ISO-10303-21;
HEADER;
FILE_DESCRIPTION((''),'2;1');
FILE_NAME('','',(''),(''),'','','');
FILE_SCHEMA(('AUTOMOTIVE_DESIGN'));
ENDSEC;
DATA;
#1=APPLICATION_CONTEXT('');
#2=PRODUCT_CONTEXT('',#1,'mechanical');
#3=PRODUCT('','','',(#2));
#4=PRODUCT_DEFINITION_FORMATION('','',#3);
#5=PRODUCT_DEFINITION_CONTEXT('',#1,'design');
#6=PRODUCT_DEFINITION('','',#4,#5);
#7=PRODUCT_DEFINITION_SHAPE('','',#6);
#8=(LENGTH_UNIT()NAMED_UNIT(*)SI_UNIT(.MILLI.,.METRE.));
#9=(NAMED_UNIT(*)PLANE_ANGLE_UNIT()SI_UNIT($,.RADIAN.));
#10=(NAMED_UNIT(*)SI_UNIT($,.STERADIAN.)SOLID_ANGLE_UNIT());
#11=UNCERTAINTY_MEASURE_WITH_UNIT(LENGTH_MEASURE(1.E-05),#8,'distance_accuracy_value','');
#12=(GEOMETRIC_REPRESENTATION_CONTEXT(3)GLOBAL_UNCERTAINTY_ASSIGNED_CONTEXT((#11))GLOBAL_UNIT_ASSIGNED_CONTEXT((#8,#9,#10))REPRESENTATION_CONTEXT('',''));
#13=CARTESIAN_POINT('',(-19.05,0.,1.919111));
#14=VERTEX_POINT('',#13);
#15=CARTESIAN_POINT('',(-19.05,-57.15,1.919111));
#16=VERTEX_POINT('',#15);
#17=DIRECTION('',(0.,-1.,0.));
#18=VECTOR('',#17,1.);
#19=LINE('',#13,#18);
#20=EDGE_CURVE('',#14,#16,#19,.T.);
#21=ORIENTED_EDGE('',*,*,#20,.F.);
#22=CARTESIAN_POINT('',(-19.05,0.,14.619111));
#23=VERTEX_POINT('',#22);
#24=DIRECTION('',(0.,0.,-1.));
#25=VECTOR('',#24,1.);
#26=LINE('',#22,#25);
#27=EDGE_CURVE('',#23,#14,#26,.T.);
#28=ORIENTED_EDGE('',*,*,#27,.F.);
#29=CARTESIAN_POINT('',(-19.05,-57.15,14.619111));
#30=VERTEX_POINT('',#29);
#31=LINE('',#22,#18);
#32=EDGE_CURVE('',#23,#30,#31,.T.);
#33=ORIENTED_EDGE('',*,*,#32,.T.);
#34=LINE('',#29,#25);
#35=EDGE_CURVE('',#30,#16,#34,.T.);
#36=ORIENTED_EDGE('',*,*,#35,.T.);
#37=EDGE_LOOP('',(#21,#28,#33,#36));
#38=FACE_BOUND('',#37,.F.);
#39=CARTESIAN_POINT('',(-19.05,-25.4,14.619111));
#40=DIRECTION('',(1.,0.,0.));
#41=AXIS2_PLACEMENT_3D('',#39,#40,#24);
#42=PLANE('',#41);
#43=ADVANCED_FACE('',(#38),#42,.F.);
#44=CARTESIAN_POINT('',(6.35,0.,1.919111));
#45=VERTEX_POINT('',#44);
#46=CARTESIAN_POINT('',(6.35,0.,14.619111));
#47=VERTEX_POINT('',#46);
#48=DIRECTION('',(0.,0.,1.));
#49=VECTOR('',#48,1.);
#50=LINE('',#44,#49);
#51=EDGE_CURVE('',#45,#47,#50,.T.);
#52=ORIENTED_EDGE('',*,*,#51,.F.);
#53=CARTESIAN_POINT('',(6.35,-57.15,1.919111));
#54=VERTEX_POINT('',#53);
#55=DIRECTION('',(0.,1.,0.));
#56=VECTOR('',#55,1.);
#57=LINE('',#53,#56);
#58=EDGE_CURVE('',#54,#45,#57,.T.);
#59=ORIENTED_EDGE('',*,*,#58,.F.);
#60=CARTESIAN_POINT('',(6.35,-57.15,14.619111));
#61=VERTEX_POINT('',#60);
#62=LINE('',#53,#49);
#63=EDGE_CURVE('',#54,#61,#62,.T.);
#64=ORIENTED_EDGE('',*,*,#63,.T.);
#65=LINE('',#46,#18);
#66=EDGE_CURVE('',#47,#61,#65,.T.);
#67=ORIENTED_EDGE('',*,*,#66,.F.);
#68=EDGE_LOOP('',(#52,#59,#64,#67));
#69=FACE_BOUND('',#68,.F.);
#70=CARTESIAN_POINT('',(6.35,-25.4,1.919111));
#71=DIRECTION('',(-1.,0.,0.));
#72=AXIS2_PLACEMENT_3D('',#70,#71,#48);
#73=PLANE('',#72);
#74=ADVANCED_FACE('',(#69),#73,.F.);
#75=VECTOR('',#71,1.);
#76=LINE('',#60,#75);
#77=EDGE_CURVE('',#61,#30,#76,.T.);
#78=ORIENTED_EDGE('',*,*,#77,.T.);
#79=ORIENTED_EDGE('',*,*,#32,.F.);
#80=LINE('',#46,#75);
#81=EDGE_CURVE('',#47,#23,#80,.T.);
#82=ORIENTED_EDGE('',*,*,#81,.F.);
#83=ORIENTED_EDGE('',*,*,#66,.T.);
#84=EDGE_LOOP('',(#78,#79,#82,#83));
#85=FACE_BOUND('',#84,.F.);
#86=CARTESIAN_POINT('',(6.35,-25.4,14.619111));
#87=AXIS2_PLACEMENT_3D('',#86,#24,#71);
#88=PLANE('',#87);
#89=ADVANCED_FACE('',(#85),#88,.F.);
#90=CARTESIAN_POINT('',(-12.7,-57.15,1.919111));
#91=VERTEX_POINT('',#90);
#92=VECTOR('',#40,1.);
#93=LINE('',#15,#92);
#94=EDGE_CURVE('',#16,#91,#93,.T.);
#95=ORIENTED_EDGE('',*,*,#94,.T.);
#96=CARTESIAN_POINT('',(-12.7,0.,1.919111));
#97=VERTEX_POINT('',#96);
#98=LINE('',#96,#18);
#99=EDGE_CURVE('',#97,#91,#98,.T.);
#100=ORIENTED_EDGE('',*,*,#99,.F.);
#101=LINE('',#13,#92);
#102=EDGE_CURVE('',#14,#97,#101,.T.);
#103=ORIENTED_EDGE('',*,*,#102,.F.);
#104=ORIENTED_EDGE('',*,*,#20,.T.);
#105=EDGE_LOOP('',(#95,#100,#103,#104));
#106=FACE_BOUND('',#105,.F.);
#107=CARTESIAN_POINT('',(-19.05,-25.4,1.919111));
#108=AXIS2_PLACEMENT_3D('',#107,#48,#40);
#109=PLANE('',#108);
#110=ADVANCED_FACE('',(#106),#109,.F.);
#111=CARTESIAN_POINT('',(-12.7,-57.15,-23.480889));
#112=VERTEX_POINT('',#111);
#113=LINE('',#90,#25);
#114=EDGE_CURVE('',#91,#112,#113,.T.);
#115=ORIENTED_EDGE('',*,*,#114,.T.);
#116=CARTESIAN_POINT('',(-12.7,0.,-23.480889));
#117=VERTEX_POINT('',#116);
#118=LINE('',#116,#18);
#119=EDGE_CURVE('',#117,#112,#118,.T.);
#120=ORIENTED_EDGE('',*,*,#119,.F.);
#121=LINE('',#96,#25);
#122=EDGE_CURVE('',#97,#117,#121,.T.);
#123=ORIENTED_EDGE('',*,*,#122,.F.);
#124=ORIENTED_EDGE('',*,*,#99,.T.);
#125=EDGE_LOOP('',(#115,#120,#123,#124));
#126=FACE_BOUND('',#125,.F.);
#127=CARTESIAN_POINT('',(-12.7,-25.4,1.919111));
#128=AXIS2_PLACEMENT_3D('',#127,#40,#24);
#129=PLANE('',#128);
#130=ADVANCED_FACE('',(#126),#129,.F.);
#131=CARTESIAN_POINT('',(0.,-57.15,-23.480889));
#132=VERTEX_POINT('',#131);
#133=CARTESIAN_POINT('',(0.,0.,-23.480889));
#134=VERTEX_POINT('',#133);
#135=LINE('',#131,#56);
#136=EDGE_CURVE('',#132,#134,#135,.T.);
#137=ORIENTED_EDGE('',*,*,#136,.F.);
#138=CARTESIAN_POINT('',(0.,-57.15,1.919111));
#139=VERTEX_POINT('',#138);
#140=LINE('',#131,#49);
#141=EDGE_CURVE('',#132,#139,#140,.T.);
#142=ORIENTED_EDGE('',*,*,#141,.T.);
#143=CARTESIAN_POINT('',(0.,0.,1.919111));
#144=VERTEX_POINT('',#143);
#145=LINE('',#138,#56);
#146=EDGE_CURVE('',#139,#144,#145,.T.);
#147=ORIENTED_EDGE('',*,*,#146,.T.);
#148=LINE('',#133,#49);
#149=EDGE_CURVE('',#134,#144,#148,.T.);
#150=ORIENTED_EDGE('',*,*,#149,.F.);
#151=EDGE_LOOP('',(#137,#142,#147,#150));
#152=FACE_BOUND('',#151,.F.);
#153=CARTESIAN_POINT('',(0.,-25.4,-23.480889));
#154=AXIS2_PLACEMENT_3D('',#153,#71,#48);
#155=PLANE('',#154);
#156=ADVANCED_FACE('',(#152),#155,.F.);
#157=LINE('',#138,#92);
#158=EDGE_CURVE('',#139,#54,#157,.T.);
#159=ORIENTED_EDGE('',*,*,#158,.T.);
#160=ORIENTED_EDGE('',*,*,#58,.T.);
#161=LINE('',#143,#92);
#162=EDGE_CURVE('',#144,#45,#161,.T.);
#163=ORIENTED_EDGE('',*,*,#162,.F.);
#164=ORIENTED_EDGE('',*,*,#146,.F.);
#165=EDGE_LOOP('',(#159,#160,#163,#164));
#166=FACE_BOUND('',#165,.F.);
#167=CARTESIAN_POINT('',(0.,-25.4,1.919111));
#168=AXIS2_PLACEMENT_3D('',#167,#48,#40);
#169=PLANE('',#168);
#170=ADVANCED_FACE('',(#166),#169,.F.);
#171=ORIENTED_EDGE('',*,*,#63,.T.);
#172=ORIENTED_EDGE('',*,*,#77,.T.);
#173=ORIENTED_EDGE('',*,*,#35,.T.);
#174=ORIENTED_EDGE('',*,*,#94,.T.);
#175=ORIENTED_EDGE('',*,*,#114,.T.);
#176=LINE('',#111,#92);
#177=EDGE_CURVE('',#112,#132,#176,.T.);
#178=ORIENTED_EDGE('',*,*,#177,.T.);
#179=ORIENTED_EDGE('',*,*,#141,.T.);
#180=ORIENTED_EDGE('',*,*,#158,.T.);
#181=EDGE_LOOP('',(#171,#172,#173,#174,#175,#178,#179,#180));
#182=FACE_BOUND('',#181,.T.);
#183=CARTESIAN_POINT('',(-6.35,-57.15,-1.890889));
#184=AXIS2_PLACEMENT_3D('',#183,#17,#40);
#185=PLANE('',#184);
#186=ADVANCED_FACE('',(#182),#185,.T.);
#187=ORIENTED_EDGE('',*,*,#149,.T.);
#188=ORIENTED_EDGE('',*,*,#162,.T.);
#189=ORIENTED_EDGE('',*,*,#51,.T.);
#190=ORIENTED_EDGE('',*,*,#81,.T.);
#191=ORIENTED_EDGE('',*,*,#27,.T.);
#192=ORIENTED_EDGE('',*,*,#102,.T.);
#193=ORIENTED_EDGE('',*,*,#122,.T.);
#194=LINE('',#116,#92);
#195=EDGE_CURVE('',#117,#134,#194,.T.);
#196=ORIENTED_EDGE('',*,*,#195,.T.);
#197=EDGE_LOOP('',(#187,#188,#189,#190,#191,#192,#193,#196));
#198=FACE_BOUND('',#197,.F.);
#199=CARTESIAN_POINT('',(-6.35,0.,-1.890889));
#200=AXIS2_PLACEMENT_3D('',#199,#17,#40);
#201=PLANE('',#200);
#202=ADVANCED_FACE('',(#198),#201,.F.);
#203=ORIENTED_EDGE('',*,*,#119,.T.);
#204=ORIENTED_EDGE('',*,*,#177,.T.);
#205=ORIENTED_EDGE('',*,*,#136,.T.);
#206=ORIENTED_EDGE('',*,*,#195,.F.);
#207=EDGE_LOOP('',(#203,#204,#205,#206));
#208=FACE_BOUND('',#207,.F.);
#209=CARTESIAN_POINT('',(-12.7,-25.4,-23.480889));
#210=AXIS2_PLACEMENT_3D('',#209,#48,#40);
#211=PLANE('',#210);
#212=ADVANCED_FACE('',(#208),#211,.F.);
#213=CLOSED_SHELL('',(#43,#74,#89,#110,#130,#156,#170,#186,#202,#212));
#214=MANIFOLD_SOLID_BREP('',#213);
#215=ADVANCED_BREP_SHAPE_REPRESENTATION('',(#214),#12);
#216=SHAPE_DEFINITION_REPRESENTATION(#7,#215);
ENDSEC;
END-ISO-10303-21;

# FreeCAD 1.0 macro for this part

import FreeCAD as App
import Part
import Sketcher

V = App.Vector
Q = App.Units.Quantity


def add_polygon(sketch, points):
    """Adds a closed chain of lines whose ends are joined by coincident constraints."""
    first, n = sketch.GeometryCount, len(points)
    for a, b in zip(points, points[1:] + points[:1]):
        sketch.addGeometry(Part.LineSegment(App.Vector(*a, 0), App.Vector(*b, 0)), False)
    for i in range(n):
        sketch.addConstraint(Sketcher.Constraint("Coincident", first + i, 2, first + (i + 1) % n, 1))

doc = App.newDocument("Part")
body = doc.addObject("PartDesign::Body", "Body")

# Sketch on XZ plane
sketch1 = body.newObject("Sketcher::SketchObject", "Sketch")
sketch1.AttachmentSupport = (doc.getObject("XZ_Plane"), [""])
sketch1.MapMode = "FlatFace"
add_polygon(sketch1, [(6.35, 14.619111), (-19.05, 14.619111), (-19.05, 1.919111), (-12.7, 1.919111), (-12.7, -23.480889), (0, -23.480889), (0, 1.919111), (6.35, 1.919111)])  # lines 0-7
sketch1.addConstraint([
    Sketcher.Constraint("Horizontal", 0),
    Sketcher.Constraint("Vertical", 1),
    Sketcher.Constraint("Horizontal", 2),
    Sketcher.Constraint("Vertical", 3),
    Sketcher.Constraint("Horizontal", 4),
    Sketcher.Constraint("Vertical", 5),
    Sketcher.Constraint("Horizontal", 6),
    Sketcher.Constraint("Vertical", 7),
    Sketcher.Constraint("PointOnObject", 4, 2, -2),
    Sketcher.Constraint("Horizontal", 2, 2, 5, 2),
    Sketcher.Constraint("Equal", 2, 6),
    Sketcher.Constraint("Equal", 4, 1),
    Sketcher.Constraint("Equal", 0, 3),
    Sketcher.Constraint("DistanceX", 0, 2, 0, 1, Q("1 in")),
    Sketcher.Constraint("DistanceX", 4, 1, 4, 2, Q("0.5 in")),
    Sketcher.Constraint("DistanceY", -1, 1, 0, 2, Q("14.619111 mm")),
])
pad1 = body.newObject("PartDesign::Pad", "Pad")
pad1.Profile = sketch1
pad1.Length = Q("1 in")

# Sketch on XZ plane
sketch2 = body.newObject("Sketcher::SketchObject", "Sketch001")
sketch2.AttachmentSupport = (doc.getObject("XZ_Plane"), [""])
sketch2.MapMode = "FlatFace"
sketch2.AttachmentOffset = App.Placement(V(0, 0, 1 * 25.4), App.Rotation())
add_polygon(sketch2, [(6.35, 1.919111), (6.35, 14.619111), (-19.05, 14.619111), (-19.05, 1.919111), (-12.7, 1.919111), (-12.7, -23.480889), (0, -23.480889), (0, 1.919111)])  # lines 0-7
sketch2.addConstraint([
    Sketcher.Constraint("Vertical", 0),
    Sketcher.Constraint("Horizontal", 1),
    Sketcher.Constraint("Vertical", 2),
    Sketcher.Constraint("Horizontal", 3),
    Sketcher.Constraint("Vertical", 4),
    Sketcher.Constraint("Horizontal", 5),
    Sketcher.Constraint("Vertical", 6),
    Sketcher.Constraint("Horizontal", 7),
    Sketcher.Constraint("PointOnObject", 5, 2, -2),
    Sketcher.Constraint("Horizontal", 3, 2, 6, 2),
    Sketcher.Constraint("Equal", 3, 7),
    Sketcher.Constraint("Equal", 5, 0),
    Sketcher.Constraint("Equal", 1, 4),
    Sketcher.Constraint("DistanceX", 1, 2, 1, 1, Q("1 in")),
    Sketcher.Constraint("DistanceX", 5, 1, 5, 2, Q("0.5 in")),
    Sketcher.Constraint("DistanceY", -1, 1, 0, 2, Q("14.619111 mm")),
])
pad2 = body.newObject("PartDesign::Pad", "Pad001")
pad2.Profile = sketch2
pad2.Length = Q("1.25 in")

doc.recompute()
